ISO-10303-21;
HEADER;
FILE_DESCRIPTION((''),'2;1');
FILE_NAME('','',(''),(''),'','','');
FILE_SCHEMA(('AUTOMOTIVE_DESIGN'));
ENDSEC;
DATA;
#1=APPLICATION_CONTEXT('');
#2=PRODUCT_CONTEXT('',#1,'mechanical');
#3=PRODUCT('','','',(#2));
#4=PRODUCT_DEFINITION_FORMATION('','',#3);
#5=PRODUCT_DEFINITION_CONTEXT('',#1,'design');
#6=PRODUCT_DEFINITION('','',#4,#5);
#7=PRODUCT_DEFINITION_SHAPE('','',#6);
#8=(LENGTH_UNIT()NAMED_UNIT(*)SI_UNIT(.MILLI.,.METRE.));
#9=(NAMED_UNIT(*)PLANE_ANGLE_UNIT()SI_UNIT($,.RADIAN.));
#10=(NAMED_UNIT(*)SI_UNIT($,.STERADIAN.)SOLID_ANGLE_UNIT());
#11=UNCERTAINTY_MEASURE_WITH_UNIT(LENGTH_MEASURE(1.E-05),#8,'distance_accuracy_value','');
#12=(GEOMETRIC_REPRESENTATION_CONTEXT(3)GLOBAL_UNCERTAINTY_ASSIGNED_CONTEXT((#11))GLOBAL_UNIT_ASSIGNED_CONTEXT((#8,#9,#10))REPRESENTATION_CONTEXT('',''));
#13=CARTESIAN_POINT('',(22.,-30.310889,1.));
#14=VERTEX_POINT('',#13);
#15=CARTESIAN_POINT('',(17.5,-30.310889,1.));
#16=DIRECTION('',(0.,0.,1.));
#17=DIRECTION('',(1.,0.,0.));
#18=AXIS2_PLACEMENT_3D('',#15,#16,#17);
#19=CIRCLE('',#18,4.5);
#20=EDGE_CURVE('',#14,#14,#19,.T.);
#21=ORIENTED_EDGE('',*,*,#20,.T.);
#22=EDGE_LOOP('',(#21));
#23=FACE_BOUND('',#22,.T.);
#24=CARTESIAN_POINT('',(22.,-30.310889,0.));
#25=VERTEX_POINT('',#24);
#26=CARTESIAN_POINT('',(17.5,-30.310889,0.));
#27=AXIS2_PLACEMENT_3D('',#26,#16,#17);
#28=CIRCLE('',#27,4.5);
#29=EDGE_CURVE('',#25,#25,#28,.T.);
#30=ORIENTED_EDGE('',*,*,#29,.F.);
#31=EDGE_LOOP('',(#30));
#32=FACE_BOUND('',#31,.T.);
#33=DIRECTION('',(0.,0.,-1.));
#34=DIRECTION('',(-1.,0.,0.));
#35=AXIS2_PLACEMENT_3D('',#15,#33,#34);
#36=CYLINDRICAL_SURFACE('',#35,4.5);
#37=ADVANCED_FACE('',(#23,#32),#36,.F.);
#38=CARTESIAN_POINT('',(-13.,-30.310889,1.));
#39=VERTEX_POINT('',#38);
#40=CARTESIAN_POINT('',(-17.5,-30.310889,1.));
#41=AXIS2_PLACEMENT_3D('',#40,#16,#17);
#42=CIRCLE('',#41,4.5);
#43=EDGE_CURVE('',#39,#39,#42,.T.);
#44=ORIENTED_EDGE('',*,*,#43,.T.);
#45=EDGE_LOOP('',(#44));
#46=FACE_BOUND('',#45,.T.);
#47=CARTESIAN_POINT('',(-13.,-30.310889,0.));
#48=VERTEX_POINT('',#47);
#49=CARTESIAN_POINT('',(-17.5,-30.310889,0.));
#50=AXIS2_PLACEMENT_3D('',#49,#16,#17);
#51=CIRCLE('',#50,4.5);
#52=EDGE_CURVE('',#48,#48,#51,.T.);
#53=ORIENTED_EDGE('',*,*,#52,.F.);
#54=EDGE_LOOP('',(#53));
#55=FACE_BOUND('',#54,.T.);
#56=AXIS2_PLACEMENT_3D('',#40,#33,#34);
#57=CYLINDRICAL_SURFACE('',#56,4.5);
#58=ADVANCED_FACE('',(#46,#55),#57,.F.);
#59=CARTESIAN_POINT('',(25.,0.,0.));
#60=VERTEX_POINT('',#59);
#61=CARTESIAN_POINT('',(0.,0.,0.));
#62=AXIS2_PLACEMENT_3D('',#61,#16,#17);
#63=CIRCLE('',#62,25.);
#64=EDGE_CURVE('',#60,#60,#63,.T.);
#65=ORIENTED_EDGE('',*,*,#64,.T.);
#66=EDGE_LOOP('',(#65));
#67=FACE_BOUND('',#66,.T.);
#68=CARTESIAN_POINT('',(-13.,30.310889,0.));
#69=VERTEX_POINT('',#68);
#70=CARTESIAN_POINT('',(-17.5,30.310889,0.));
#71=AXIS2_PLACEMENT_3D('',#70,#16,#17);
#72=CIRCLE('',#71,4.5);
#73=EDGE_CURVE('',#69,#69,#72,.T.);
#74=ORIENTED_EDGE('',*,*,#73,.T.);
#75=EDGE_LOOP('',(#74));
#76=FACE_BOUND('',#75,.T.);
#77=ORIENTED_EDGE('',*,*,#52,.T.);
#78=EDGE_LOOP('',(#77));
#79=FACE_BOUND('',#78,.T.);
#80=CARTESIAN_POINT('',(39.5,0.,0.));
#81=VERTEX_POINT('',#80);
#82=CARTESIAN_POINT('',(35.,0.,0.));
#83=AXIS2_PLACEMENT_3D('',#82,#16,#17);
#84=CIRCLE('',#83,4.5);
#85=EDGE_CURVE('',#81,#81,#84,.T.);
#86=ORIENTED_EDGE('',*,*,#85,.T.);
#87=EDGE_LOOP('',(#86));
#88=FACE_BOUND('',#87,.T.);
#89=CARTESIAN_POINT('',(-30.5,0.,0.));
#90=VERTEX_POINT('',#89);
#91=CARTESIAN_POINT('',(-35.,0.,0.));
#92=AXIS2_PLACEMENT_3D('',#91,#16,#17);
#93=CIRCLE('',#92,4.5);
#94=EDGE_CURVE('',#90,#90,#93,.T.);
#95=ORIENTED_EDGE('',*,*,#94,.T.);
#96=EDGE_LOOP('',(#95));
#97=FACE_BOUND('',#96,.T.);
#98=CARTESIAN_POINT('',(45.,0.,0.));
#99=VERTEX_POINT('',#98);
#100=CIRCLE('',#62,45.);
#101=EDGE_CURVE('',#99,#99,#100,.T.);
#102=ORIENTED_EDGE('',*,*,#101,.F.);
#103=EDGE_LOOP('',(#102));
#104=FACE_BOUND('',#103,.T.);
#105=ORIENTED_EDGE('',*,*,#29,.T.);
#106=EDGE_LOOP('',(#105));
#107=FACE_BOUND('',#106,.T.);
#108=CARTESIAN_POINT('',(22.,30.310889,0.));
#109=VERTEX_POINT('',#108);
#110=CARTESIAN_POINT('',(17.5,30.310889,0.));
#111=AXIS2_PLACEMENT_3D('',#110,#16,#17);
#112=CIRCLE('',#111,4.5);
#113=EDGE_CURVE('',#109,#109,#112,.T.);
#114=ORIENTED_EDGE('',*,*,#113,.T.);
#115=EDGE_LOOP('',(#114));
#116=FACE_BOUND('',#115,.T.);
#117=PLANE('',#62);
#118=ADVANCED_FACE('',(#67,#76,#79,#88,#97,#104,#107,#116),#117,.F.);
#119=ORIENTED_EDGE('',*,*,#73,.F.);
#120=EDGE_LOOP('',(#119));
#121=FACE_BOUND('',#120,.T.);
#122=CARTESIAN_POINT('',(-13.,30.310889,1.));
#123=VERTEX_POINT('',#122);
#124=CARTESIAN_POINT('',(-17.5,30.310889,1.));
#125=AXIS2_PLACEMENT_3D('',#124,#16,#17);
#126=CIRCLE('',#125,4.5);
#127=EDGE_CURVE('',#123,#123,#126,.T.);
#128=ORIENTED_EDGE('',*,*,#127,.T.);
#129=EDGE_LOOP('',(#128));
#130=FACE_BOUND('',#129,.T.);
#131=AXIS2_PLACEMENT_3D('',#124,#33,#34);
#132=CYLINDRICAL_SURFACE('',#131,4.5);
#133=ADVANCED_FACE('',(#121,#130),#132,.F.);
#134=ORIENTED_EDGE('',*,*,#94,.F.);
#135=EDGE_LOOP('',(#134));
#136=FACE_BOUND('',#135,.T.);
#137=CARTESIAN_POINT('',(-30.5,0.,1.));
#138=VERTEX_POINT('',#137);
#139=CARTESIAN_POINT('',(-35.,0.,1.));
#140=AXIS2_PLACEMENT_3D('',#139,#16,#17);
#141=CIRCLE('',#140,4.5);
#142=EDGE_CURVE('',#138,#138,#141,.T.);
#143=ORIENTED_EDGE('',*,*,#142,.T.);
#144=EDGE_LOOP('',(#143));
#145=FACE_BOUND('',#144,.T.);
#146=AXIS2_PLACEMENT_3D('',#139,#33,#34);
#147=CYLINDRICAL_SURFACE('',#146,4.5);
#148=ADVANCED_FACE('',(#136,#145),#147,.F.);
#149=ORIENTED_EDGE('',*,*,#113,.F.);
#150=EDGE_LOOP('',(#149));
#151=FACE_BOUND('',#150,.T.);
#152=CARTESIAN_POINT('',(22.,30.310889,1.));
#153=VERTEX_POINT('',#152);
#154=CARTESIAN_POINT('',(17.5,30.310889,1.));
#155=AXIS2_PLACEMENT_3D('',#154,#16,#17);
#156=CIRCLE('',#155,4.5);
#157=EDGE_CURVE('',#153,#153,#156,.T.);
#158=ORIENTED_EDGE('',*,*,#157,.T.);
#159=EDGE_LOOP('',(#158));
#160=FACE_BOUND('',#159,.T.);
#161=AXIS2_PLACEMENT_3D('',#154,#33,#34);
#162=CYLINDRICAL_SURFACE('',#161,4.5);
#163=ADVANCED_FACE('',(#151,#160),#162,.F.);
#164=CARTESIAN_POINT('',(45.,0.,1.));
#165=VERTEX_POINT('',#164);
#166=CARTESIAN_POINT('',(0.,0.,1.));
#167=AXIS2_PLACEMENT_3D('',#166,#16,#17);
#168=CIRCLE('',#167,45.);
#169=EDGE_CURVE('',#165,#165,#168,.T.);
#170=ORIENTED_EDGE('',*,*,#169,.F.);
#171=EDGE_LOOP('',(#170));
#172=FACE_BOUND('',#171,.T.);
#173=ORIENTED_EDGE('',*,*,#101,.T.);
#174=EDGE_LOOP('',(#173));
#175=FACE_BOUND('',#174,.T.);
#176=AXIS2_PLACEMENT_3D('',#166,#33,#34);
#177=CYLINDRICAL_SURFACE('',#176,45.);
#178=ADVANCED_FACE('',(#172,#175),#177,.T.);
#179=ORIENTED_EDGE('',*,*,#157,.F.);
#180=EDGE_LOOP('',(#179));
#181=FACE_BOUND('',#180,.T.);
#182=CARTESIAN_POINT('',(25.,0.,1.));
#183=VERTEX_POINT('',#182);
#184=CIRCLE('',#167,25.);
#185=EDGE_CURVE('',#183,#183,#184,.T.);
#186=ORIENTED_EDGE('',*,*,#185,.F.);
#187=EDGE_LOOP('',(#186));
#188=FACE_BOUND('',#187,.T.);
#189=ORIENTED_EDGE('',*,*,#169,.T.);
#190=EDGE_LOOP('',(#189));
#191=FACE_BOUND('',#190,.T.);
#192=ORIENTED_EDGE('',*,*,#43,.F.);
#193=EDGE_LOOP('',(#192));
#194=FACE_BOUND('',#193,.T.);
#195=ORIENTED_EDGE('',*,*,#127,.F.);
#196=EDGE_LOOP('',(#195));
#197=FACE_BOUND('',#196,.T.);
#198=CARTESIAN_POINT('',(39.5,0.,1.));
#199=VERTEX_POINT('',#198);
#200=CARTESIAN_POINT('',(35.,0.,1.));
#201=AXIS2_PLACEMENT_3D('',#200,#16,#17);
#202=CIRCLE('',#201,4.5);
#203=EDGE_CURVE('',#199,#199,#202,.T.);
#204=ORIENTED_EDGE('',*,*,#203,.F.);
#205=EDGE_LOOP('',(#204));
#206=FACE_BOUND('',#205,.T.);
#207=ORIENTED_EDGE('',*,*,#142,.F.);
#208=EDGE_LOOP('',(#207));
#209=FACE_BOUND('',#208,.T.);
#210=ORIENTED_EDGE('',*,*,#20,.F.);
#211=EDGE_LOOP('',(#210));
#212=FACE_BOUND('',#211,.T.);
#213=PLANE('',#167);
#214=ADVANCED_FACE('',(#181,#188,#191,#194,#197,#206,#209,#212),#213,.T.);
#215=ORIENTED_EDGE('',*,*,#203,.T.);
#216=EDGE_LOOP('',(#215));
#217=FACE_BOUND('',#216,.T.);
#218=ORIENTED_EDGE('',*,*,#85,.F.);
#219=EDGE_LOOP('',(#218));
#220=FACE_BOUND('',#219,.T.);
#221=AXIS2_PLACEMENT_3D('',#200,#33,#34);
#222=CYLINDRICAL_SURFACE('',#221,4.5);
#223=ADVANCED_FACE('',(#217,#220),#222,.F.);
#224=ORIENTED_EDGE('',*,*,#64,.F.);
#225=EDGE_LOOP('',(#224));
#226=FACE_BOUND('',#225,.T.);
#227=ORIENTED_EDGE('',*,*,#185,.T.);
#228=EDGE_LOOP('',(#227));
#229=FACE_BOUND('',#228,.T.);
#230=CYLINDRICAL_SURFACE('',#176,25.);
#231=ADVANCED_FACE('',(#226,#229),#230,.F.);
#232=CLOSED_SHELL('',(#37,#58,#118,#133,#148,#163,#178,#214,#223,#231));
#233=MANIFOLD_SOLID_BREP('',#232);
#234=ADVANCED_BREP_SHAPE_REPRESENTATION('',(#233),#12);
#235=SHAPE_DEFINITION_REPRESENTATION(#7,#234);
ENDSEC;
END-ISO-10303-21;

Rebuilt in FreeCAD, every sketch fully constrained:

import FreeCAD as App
import Part
import Sketcher
from FreeCAD import Vector

doc = App.newDocument("Part")
body = doc.addObject("PartDesign::Body", "Body")

sketch1 = body.newObject("Sketcher::SketchObject", "Sketch")
sketch1.AttachmentSupport = (doc.getObject("XY_Plane"), [""])
sketch1.MapMode = "FlatFace"
sketch1.addGeometry(Part.Circle(Vector(0, 0, 0), Vector(0, 0, 1), 45), False)
sketch1.addGeometry(Part.Circle(Vector(-17.5, -30.3, 0), Vector(0, 0, 1), 4.5), False)
sketch1.addGeometry(Part.Circle(Vector(17.5, -30.3, 0), Vector(0, 0, 1), 4.5), False)
sketch1.addGeometry(Part.Circle(Vector(-35, 0, 0), Vector(0, 0, 1), 4.5), False)
sketch1.addGeometry(Part.Circle(Vector(-17.5, 30.3, 0), Vector(0, 0, 1), 4.5), False)
sketch1.addGeometry(Part.Circle(Vector(0, 0, 0), Vector(0, 0, 1), 25), False)
sketch1.addGeometry(Part.Circle(Vector(35, 0, 0), Vector(0, 0, 1), 4.5), False)
sketch1.addGeometry(Part.Circle(Vector(17.5, 30.3, 0), Vector(0, 0, 1), 4.5), False)
sketch1.addConstraint(Sketcher.Constraint("Coincident", 0, 3, -1, 1))
sketch1.addConstraint(Sketcher.Constraint("Coincident", 5, 3, -1, 1))
sketch1.addConstraint(Sketcher.Constraint("Equal", 1, 2))
sketch1.addConstraint(Sketcher.Constraint("Equal", 2, 3))
sketch1.addConstraint(Sketcher.Constraint("Equal", 3, 4))
sketch1.addConstraint(Sketcher.Constraint("Equal", 4, 6))
sketch1.addConstraint(Sketcher.Constraint("Equal", 6, 7))
sketch1.addConstraint(Sketcher.Constraint("Symmetric", 2, 3, 4, 3, -1, 1))
sketch1.addConstraint(Sketcher.Constraint("Symmetric", 3, 3, 6, 3, -1, 1))
sketch1.addConstraint(Sketcher.Constraint("Symmetric", 1, 3, 7, 3, -1, 1))
sketch1.addConstraint(Sketcher.Constraint("Symmetric", 1, 3, 2, 3, -2))
sketch1.addConstraint(Sketcher.Constraint("PointOnObject", 3, 3, -1))
sketch1.addConstraint(Sketcher.Constraint("Diameter", 0, 90.0))
sketch1.addConstraint(Sketcher.Constraint("Diameter", 1, 9.0))
sketch1.addConstraint(Sketcher.Constraint("Diameter", 5, 50.0))
sketch1.addConstraint(Sketcher.Constraint("DistanceX", 3, 3, -1, 1, 35.0))
sketch1.addConstraint(Sketcher.Constraint("DistanceX", 1, 3, 2, 3, 35.0))
sketch1.addConstraint(Sketcher.Constraint("DistanceY", 1, 3, -1, 1, 30.310889))
pad1 = body.newObject("PartDesign::Pad", "Pad")
pad1.Profile = sketch1
pad1.Length = 1

doc.recompute()
